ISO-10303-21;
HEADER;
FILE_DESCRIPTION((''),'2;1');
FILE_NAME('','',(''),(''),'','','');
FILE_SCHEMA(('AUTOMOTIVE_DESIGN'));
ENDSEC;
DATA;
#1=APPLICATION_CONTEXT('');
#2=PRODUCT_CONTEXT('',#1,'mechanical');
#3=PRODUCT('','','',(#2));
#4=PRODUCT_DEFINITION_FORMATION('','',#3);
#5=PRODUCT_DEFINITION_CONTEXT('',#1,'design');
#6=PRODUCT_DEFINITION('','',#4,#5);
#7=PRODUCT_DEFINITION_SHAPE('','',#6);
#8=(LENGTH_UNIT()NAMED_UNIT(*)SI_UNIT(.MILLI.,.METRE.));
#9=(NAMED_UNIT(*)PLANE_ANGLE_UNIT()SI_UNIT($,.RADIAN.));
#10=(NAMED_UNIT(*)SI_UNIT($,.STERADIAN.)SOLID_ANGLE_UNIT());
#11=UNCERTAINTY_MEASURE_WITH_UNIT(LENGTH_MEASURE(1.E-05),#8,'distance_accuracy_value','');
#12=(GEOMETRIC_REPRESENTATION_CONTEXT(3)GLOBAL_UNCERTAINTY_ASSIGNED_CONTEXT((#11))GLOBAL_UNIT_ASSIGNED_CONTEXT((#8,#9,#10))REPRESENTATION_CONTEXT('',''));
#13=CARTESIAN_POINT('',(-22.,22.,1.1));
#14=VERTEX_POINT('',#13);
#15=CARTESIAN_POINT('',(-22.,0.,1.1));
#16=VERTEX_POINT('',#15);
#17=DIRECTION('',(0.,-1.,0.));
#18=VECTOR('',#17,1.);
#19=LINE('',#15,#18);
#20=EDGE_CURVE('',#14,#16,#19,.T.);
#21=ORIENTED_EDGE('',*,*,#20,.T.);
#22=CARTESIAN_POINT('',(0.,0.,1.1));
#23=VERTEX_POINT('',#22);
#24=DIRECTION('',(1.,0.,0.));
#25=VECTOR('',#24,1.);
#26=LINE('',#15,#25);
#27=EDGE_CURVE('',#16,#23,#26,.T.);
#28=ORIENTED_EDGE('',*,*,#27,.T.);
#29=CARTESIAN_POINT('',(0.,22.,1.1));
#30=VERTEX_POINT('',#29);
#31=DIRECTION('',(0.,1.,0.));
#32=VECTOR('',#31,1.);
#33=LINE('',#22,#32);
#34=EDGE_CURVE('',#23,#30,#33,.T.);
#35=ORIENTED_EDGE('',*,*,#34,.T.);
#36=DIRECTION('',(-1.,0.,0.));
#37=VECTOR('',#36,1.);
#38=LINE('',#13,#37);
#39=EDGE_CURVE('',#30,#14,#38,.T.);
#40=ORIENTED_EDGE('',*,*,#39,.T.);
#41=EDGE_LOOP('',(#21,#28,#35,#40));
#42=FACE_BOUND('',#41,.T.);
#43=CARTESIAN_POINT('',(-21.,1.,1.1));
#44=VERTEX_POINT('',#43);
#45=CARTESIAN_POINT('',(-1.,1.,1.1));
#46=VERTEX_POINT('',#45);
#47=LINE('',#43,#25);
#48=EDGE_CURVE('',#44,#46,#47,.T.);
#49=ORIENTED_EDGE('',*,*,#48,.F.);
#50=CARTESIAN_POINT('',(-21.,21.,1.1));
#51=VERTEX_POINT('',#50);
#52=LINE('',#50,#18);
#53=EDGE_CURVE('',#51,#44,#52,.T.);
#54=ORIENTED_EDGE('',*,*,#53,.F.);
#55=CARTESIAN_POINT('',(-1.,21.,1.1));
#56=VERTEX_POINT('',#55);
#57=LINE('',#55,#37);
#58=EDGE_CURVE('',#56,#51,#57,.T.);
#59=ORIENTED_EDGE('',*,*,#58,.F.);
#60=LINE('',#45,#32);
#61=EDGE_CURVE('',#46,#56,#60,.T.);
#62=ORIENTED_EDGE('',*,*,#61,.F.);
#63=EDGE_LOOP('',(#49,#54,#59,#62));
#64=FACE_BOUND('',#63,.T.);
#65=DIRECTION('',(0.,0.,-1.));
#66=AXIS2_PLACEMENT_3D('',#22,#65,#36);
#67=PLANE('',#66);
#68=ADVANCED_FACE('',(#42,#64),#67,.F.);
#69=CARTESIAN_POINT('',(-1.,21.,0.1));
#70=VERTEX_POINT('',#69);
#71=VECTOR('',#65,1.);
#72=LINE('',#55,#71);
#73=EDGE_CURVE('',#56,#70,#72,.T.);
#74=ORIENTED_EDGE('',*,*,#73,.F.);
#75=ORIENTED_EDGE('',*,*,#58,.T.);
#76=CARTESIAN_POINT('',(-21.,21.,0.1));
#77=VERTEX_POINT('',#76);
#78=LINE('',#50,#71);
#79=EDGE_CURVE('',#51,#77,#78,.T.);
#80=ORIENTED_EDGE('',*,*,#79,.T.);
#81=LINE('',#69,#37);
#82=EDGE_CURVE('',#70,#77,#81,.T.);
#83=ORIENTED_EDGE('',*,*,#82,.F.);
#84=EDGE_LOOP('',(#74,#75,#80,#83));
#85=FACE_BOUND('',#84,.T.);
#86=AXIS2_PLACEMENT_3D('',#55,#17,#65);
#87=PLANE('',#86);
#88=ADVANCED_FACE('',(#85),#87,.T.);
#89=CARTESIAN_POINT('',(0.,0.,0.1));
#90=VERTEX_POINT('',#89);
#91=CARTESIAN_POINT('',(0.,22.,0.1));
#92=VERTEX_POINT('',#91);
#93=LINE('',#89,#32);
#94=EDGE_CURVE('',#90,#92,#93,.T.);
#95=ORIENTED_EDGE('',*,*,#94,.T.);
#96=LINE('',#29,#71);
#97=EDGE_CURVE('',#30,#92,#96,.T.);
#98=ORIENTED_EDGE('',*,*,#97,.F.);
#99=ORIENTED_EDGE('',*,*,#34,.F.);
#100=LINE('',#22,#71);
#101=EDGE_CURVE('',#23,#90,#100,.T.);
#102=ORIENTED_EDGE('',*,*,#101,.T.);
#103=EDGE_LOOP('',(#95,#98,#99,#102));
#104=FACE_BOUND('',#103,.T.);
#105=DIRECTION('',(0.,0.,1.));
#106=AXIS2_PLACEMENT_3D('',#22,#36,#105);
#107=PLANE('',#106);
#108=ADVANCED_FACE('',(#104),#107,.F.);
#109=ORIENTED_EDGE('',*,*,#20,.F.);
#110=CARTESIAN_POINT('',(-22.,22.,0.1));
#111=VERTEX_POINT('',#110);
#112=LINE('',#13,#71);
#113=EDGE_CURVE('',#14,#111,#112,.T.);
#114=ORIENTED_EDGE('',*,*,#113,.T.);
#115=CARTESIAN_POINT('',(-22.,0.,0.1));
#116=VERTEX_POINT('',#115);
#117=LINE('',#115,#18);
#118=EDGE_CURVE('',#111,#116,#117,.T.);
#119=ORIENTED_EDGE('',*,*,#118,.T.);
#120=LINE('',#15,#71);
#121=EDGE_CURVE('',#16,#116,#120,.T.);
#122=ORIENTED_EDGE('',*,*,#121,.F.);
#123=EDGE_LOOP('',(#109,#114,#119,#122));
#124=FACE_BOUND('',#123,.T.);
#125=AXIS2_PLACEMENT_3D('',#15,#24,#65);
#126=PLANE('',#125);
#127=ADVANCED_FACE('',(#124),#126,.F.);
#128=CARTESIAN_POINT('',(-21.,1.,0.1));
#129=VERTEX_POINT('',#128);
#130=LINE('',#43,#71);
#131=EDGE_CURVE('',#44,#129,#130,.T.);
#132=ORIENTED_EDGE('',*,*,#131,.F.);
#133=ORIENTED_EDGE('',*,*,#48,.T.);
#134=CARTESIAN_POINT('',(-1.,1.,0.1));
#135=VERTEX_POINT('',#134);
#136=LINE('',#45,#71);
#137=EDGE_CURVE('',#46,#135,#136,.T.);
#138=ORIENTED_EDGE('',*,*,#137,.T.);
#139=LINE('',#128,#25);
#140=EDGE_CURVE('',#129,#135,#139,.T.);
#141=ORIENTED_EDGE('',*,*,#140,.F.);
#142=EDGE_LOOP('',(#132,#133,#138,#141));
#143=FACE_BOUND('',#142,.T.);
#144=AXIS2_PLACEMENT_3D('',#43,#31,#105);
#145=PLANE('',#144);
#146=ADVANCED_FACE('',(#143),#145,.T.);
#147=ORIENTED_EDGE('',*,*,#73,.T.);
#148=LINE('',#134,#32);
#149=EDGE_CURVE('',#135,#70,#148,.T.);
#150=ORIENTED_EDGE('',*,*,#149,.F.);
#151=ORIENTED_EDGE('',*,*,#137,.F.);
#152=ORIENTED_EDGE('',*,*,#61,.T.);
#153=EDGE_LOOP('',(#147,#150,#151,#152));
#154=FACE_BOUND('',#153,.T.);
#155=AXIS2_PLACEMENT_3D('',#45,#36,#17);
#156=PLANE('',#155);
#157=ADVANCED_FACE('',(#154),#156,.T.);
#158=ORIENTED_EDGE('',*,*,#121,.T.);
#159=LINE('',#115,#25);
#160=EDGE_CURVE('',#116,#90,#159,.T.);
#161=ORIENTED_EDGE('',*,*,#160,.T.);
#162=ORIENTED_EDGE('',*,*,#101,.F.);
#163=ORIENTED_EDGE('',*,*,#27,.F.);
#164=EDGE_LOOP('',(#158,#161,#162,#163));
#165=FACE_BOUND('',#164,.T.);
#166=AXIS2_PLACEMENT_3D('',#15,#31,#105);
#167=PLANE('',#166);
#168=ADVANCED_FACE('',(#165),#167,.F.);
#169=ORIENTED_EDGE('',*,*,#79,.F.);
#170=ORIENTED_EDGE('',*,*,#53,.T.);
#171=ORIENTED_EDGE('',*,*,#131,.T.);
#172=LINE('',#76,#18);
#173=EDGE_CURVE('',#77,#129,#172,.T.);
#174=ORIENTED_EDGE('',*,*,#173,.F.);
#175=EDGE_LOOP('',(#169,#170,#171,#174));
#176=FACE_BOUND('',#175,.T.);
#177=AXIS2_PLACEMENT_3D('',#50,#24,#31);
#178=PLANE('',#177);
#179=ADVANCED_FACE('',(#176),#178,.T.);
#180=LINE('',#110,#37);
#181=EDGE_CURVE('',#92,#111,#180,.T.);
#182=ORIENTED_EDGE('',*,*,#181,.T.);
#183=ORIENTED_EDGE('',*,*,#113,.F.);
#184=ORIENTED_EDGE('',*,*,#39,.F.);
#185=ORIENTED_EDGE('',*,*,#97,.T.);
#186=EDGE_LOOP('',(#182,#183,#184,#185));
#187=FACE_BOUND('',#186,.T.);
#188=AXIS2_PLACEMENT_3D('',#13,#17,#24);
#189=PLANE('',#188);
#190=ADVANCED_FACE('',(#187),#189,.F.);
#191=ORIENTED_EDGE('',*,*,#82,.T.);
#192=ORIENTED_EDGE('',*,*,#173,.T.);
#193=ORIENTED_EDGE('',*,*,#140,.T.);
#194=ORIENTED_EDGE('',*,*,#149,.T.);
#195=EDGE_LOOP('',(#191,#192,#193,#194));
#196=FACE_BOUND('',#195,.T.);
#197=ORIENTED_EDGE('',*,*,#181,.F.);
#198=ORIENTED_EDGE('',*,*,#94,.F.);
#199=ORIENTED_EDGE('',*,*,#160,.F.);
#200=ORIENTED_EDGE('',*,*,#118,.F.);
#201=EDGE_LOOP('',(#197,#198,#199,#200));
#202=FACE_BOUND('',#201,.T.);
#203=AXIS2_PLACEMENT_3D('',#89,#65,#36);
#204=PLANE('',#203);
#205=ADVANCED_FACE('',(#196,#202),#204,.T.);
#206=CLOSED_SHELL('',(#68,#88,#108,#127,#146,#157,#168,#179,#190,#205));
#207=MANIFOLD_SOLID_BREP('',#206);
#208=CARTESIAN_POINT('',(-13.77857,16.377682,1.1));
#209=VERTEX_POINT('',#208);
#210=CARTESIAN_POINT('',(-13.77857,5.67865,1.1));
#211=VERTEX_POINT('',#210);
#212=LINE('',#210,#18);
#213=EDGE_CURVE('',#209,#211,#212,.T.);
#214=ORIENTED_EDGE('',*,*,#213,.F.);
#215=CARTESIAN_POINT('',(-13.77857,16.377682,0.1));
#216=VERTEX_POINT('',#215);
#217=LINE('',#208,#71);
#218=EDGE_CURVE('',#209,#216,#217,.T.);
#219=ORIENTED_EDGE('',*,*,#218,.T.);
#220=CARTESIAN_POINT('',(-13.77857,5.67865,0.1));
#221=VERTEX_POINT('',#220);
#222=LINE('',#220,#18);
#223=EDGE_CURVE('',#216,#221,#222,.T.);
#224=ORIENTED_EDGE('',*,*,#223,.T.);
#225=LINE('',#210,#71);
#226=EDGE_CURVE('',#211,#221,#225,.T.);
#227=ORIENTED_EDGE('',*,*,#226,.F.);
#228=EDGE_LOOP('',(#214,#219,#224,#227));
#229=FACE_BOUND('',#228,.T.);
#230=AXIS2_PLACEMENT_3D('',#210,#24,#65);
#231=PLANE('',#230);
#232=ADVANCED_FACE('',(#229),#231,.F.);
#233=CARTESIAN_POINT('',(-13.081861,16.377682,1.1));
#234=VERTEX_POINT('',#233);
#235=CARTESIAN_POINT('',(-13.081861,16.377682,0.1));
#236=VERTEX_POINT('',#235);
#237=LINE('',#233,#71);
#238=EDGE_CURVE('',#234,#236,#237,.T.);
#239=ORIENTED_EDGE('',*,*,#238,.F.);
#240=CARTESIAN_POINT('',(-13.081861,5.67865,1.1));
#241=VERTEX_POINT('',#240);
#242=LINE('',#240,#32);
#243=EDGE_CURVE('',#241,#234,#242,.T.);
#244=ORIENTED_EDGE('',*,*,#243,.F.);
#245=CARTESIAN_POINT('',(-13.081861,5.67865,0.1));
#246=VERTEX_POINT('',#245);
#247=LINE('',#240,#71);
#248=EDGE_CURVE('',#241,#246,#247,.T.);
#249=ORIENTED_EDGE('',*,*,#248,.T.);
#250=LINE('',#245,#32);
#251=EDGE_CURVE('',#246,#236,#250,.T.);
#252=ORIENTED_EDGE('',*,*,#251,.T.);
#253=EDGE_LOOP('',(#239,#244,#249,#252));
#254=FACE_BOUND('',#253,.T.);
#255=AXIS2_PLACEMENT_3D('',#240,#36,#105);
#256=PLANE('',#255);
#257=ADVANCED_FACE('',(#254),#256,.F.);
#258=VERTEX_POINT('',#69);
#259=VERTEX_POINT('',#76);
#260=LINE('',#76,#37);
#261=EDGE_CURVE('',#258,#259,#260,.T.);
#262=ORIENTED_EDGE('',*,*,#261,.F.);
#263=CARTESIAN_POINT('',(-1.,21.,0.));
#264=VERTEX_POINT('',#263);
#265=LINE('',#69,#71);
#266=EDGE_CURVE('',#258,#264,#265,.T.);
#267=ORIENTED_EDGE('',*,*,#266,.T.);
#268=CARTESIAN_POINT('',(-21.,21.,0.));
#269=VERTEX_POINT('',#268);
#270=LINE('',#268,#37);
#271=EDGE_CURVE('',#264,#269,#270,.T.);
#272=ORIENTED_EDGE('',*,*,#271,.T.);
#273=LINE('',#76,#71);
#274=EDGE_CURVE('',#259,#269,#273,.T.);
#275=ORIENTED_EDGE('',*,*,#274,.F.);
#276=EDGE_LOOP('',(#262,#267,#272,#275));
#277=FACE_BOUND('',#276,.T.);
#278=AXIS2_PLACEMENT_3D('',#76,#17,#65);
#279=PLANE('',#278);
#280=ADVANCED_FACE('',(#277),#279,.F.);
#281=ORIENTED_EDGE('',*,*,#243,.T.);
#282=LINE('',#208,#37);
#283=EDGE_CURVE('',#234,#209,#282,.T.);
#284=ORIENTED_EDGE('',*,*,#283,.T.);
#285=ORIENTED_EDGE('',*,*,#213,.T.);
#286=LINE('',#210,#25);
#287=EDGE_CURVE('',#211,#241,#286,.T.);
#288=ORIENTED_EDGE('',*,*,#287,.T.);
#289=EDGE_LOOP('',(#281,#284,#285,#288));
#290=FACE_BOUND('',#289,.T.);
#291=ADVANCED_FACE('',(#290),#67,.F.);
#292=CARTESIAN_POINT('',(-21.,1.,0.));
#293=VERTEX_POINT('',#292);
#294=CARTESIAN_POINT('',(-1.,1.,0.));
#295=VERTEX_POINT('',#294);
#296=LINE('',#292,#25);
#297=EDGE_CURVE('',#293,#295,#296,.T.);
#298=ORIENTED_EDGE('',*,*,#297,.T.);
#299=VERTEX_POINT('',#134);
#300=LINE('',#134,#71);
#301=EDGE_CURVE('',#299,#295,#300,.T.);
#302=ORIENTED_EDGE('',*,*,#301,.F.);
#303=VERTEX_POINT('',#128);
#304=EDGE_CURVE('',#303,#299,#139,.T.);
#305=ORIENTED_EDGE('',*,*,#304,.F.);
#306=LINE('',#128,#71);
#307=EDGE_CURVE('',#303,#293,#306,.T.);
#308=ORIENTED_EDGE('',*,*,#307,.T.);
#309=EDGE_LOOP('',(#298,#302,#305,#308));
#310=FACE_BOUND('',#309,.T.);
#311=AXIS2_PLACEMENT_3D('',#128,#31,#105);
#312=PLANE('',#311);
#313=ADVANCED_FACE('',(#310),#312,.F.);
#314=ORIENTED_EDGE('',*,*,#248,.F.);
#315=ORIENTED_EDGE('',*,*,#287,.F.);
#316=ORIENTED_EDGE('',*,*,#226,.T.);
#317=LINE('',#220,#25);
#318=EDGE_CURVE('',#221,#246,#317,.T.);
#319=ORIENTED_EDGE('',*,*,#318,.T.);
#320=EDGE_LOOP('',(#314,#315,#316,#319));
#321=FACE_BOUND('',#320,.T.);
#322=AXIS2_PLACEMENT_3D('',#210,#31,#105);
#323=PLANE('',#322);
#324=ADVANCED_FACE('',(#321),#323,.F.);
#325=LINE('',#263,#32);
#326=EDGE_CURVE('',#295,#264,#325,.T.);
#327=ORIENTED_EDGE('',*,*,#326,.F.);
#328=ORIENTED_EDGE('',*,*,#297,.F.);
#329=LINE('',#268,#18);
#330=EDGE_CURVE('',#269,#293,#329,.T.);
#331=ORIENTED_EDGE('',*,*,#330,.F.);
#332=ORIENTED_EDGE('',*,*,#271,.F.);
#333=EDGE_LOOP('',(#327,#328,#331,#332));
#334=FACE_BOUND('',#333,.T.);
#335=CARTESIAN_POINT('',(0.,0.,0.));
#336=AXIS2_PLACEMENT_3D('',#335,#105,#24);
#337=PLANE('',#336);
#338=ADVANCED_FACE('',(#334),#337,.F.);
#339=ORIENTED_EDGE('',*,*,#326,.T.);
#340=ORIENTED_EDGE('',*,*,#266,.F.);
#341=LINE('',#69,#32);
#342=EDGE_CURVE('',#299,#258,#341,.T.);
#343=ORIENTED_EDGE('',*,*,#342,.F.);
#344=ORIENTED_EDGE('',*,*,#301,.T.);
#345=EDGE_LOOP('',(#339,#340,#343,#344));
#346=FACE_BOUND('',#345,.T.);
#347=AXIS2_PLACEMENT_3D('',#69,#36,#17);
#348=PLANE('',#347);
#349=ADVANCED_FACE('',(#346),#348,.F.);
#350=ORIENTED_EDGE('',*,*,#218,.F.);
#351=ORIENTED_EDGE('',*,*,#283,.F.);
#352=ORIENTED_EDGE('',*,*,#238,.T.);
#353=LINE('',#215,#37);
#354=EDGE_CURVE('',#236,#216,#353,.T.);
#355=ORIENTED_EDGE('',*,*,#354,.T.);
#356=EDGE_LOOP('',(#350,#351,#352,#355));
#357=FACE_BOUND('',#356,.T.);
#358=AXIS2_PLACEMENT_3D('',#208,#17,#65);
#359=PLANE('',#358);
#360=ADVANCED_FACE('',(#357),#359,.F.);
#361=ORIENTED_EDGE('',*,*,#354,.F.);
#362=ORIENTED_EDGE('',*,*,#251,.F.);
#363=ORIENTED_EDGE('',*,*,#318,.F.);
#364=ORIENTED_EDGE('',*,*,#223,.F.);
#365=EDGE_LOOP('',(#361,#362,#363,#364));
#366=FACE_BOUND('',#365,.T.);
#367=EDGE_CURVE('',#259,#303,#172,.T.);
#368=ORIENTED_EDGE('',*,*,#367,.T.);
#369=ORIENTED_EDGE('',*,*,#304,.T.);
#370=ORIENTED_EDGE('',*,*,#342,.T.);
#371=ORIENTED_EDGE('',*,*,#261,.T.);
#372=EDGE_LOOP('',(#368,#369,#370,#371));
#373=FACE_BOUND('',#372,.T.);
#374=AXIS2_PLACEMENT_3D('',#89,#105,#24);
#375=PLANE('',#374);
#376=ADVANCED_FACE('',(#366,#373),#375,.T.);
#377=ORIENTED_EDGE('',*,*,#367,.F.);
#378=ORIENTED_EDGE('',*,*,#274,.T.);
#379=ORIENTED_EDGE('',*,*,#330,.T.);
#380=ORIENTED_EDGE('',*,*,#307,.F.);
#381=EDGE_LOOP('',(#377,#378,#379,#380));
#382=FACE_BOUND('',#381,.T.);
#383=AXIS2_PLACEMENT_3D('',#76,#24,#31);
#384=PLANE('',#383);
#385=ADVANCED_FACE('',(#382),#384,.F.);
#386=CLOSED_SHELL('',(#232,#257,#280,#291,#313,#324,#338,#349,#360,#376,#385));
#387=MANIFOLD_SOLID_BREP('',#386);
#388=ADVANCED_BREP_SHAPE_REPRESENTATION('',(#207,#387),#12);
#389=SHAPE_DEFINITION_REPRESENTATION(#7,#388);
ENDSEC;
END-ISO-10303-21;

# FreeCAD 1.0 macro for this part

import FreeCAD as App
import Part
import Sketcher

V = App.Vector

doc = App.newDocument("Part")
body = doc.addObject("PartDesign::Body", "Body")

sketch1 = body.newObject("Sketcher::SketchObject", "Sketch")
sketch1.AttachmentSupport = (doc.getObject("XY_Plane"), [""])
sketch1.MapMode = "FlatFace"
sketch1.addGeometry([
    Part.LineSegment(V(-21, 21, 0), V(-21, 1, 0)),
    Part.LineSegment(V(-21, 1, 0), V(-1, 1, 0)),
    Part.LineSegment(V(-1, 1, 0), V(-1, 21, 0)),
    Part.LineSegment(V(-1, 21, 0), V(-21, 21, 0)),
], False)
sketch1.addConstraint([
    Sketcher.Constraint("Coincident", 0, 2, 1, 1),
    Sketcher.Constraint("Coincident", 1, 2, 2, 1),
    Sketcher.Constraint("Coincident", 2, 2, 3, 1),
    Sketcher.Constraint("Coincident", 3, 2, 0, 1),
    Sketcher.Constraint("Vertical", 0),
    Sketcher.Constraint("Horizontal", 1),
    Sketcher.Constraint("Vertical", 2),
    Sketcher.Constraint("Horizontal", 3),
    Sketcher.Constraint("Equal", 3, 0),
    Sketcher.Constraint("DistanceX", 1, 1, 1, 2, 20.0),
    Sketcher.Constraint("DistanceX", 0, 2, -1, 1, 21.0),
    Sketcher.Constraint("DistanceY", -1, 1, 0, 2, 1.0),
])
pad1 = body.newObject("PartDesign::Pad", "Pad")
pad1.Profile = sketch1
pad1.Length = 0.1

sketch2 = body.newObject("Sketcher::SketchObject", "Sketch001")
sketch2.AttachmentSupport = (doc.getObject("XY_Plane"), [""])
sketch2.MapMode = "FlatFace"
sketch2.AttachmentOffset = App.Placement(V(0, 0, 0.1), App.Rotation())
sketch2.addGeometry([
    Part.LineSegment(V(-13.77857, 16.377682, 0), V(-13.77857, 5.67865, 0)),
    Part.LineSegment(V(-13.77857, 5.67865, 0), V(-13.081861, 5.67865, 0)),
    Part.LineSegment(V(-13.081861, 5.67865, 0), V(-13.081861, 16.377682, 0)),
    Part.LineSegment(V(-13.081861, 16.377682, 0), V(-13.77857, 16.377682, 0)),
], False)
sketch2.addConstraint([
    Sketcher.Constraint("Coincident", 0, 2, 1, 1),
    Sketcher.Constraint("Coincident", 1, 2, 2, 1),
    Sketcher.Constraint("Coincident", 2, 2, 3, 1),
    Sketcher.Constraint("Coincident", 3, 2, 0, 1),
    Sketcher.Constraint("Vertical", 0),
    Sketcher.Constraint("Horizontal", 1),
    Sketcher.Constraint("Vertical", 2),
    Sketcher.Constraint("Horizontal", 3),
    Sketcher.Constraint("DistanceX", 1, 1, 1, 2, 0.696709),
    Sketcher.Constraint("DistanceY", 0, 2, 0, 1, 10.699032),
    Sketcher.Constraint("DistanceX", 0, 2, -1, 1, 13.77857),
    Sketcher.Constraint("DistanceY", -1, 1, 0, 2, 5.67865),
])
pad2 = body.newObject("PartDesign::Pad", "Pad001")
pad2.Profile = sketch2
pad2.Length = 1
body2 = doc.addObject("PartDesign::Body", "Body001")

sketch3 = body2.newObject("Sketcher::SketchObject", "Sketch002")
sketch3.AttachmentSupport = (doc.getObject("XY_Plane001"), [""])
sketch3.MapMode = "FlatFace"
sketch3.AttachmentOffset = App.Placement(V(0, 0, 0.1), App.Rotation())
sketch3.addGeometry([
    Part.LineSegment(V(-22, 22, 0), V(-22, 0, 0)),
    Part.LineSegment(V(-22, 0, 0), V(0, 0, 0)),
    Part.LineSegment(V(0, 0, 0), V(0, 22, 0)),
    Part.LineSegment(V(0, 22, 0), V(-22, 22, 0)),
    Part.LineSegment(V(-1, 1, 0), V(-21, 1, 0)),
    Part.LineSegment(V(-21, 1, 0), V(-21, 21, 0)),
    Part.LineSegment(V(-21, 21, 0), V(-1, 21, 0)),
    Part.LineSegment(V(-1, 21, 0), V(-1, 1, 0)),
], False)
sketch3.addConstraint([
    Sketcher.Constraint("Coincident", 0, 2, 1, 1),
    Sketcher.Constraint("Coincident", 1, 2, 2, 1),
    Sketcher.Constraint("Coincident", 2, 2, 3, 1),
    Sketcher.Constraint("Coincident", 3, 2, 0, 1),
    Sketcher.Constraint("Coincident", 4, 2, 5, 1),
    Sketcher.Constraint("Coincident", 5, 2, 6, 1),
    Sketcher.Constraint("Coincident", 6, 2, 7, 1),
    Sketcher.Constraint("Coincident", 7, 2, 4, 1),
    Sketcher.Constraint("Vertical", 0),
    Sketcher.Constraint("Horizontal", 1),
    Sketcher.Constraint("Vertical", 2),
    Sketcher.Constraint("Horizontal", 3),
    Sketcher.Constraint("Horizontal", 4),
    Sketcher.Constraint("Vertical", 5),
    Sketcher.Constraint("Horizontal", 6),
    Sketcher.Constraint("Vertical", 7),
    Sketcher.Constraint("Coincident", 1, 2, -1, 1),
    Sketcher.Constraint("Equal", 3, 0),
    Sketcher.Constraint("Equal", 6, 5),
    Sketcher.Constraint("DistanceX", 1, 1, 1, 2, 22.0),
    Sketcher.Constraint("DistanceX", 4, 2, 4, 1, 20.0),
    Sketcher.Constraint("DistanceX", 4, 2, -1, 1, 21.0),
    Sketcher.Constraint("DistanceY", -1, 1, 4, 2, 1.0),
])
pad3 = body2.newObject("PartDesign::Pad", "Pad002")
pad3.Profile = sketch3
pad3.Length = 1

doc.recompute()
